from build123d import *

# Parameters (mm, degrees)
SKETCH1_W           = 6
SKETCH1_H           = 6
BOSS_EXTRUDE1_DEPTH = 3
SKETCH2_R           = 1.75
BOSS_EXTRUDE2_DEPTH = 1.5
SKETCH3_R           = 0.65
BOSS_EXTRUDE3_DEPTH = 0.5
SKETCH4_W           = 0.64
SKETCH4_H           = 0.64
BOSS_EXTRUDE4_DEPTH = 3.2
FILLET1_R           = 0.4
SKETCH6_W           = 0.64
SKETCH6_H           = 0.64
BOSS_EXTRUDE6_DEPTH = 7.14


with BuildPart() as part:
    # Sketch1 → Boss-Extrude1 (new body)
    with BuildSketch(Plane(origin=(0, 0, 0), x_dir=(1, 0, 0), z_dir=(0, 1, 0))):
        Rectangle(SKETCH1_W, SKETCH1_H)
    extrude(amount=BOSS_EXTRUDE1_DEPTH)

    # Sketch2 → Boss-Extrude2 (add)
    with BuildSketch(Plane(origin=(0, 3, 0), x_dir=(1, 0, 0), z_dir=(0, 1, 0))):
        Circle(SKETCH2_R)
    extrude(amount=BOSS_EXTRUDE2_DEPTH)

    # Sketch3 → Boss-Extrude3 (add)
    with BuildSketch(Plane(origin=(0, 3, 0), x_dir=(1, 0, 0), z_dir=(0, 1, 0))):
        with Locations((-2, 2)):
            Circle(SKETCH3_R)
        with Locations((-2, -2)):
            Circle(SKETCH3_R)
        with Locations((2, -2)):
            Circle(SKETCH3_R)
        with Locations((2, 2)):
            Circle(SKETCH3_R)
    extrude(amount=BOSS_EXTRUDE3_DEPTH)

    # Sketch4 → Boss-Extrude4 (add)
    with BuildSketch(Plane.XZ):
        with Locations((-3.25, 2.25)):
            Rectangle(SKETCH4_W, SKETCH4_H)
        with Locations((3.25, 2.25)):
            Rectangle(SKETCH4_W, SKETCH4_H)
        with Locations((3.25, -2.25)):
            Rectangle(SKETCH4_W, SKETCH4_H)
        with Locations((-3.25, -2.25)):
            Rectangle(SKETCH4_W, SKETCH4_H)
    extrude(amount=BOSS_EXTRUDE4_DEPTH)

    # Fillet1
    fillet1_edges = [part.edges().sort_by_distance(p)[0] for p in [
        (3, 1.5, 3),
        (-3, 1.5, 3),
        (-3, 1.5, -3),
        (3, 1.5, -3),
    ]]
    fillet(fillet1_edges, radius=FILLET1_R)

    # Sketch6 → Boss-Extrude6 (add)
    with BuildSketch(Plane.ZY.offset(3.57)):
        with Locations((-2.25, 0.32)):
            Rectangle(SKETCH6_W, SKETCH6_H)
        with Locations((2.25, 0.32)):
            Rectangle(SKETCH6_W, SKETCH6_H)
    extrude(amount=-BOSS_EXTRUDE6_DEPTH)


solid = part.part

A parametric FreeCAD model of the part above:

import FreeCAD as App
import Part
import Sketcher
from FreeCAD import Vector


def edges_at(feature, points):
    """Names of the edges that pass closest to the given points."""
    edges = feature.Shape.Edges
    near = lambda p: min(range(len(edges)), key=lambda i: edges[i].distToShape(Part.Vertex(*p))[0])
    return sorted({f"Edge{near(p) + 1}" for p in points})


def add_polygon(sketch, points):
    """Adds a closed chain of lines whose ends are joined by coincident constraints."""
    first, n = sketch.GeometryCount, len(points)
    for a, b in zip(points, points[1:] + points[:1]):
        sketch.addGeometry(Part.LineSegment(App.Vector(*a, 0), App.Vector(*b, 0)), False)
    for i in range(n):
        sketch.addConstraint(Sketcher.Constraint("Coincident", first + i, 2, first + (i + 1) % n, 1))

doc = App.newDocument("Part")
body = doc.addObject("PartDesign::Body", "Body")

sketch1 = body.newObject("Sketcher::SketchObject", "Sketch")
sketch1.AttachmentSupport = (doc.getObject("XZ_Plane"), [""])
sketch1.MapMode = "FlatFace"
add_polygon(sketch1, [(-3, -3), (-3, 3), (3, 3), (3, -3)])
sketch1.addConstraint(Sketcher.Constraint("Vertical", 0))
sketch1.addConstraint(Sketcher.Constraint("Horizontal", 1))
sketch1.addConstraint(Sketcher.Constraint("Vertical", 2))
sketch1.addConstraint(Sketcher.Constraint("Horizontal", 3))
sketch1.addConstraint(Sketcher.Constraint("Symmetric", 0, 2, 2, 2, -1, 1))
sketch1.addConstraint(Sketcher.Constraint("Equal", 3, 0))
sketch1.addConstraint(Sketcher.Constraint("DistanceX", 1, 1, 1, 2, 6.0))
pad1 = body.newObject("PartDesign::Pad", "Pad")
pad1.Profile = sketch1
pad1.Length = 3
pad1.Reversed = True

sketch2 = body.newObject("Sketcher::SketchObject", "Sketch001")
sketch2.AttachmentSupport = (doc.getObject("XZ_Plane"), [""])
sketch2.MapMode = "FlatFace"
sketch2.AttachmentOffset = App.Placement(Vector(0, 0, -3), App.Rotation())
sketch2.addGeometry(Part.Circle(Vector(0, 0, 0), Vector(0, 0, 1), 1.8), False)
sketch2.addConstraint(Sketcher.Constraint("Coincident", 0, 3, -1, 1))
sketch2.addConstraint(Sketcher.Constraint("Diameter", 0, 3.5))
pad2 = body.newObject("PartDesign::Pad", "Pad001")
pad2.Profile = sketch2
pad2.Length = 1.5
pad2.Reversed = True

sketch3 = body.newObject("Sketcher::SketchObject", "Sketch002")
sketch3.AttachmentSupport = (doc.getObject("XZ_Plane"), [""])
sketch3.MapMode = "FlatFace"
sketch3.AttachmentOffset = App.Placement(Vector(0, 0, -3), App.Rotation())
sketch3.addGeometry(Part.Circle(Vector(-2, -2, 0), Vector(0, 0, 1), 0.7), False)
sketch3.addGeometry(Part.Circle(Vector(-2, 2, 0), Vector(0, 0, 1), 0.7), False)
sketch3.addGeometry(Part.Circle(Vector(2, 2, 0), Vector(0, 0, 1), 0.7), False)
sketch3.addGeometry(Part.Circle(Vector(2, -2, 0), Vector(0, 0, 1), 0.7), False)
sketch3.addConstraint(Sketcher.Constraint("Equal", 0, 1))
sketch3.addConstraint(Sketcher.Constraint("Equal", 1, 2))
sketch3.addConstraint(Sketcher.Constraint("Equal", 2, 3))
sketch3.addConstraint(Sketcher.Constraint("Symmetric", 0, 3, 2, 3, -1, 1))
sketch3.addConstraint(Sketcher.Constraint("Symmetric", 1, 3, 3, 3, -1, 1))
sketch3.addConstraint(Sketcher.Constraint("Symmetric", 1, 3, 2, 3, -2))
sketch3.addConstraint(Sketcher.Constraint("Diameter", 0, 1.3))
sketch3.addConstraint(Sketcher.Constraint("DistanceX", 0, 3, -1, 1, 2.0))
sketch3.addConstraint(Sketcher.Constraint("DistanceY", 0, 3, -1, 1, 2.0))
pad3 = body.newObject("PartDesign::Pad", "Pad002")
pad3.Profile = sketch3
pad3.Length = 0.5
pad3.Reversed = True

sketch4 = body.newObject("Sketcher::SketchObject", "Sketch003")
sketch4.AttachmentSupport = (doc.getObject("XZ_Plane"), [""])
sketch4.MapMode = "FlatFace"
add_polygon(sketch4, [(-3.6, 2.6), (-3.6, 1.9), (-2.9, 1.9), (-2.9, 2.6)])
add_polygon(sketch4, [(2.9, 2.6), (2.9, 1.9), (3.6, 1.9), (3.6, 2.6)])
add_polygon(sketch4, [(2.9, -1.9), (2.9, -2.6), (3.6, -2.6), (3.6, -1.9)])
add_polygon(sketch4, [(-3.6, -1.9), (-3.6, -2.6), (-2.9, -2.6), (-2.9, -1.9)])
sketch4.addConstraint(Sketcher.Constraint("Vertical", 0))
sketch4.addConstraint(Sketcher.Constraint("Horizontal", 1))
sketch4.addConstraint(Sketcher.Constraint("Vertical", 2))
sketch4.addConstraint(Sketcher.Constraint("Horizontal", 3))
sketch4.addConstraint(Sketcher.Constraint("Vertical", 4))
sketch4.addConstraint(Sketcher.Constraint("Horizontal", 5))
sketch4.addConstraint(Sketcher.Constraint("Vertical", 6))
sketch4.addConstraint(Sketcher.Constraint("Horizontal", 7))
sketch4.addConstraint(Sketcher.Constraint("Vertical", 8))
sketch4.addConstraint(Sketcher.Constraint("Horizontal", 9))
sketch4.addConstraint(Sketcher.Constraint("Vertical", 10))
sketch4.addConstraint(Sketcher.Constraint("Horizontal", 11))
sketch4.addConstraint(Sketcher.Constraint("Vertical", 12))
sketch4.addConstraint(Sketcher.Constraint("Horizontal", 13))
sketch4.addConstraint(Sketcher.Constraint("Vertical", 14))
sketch4.addConstraint(Sketcher.Constraint("Horizontal", 15))
sketch4.addConstraint(Sketcher.Constraint("Symmetric", 2, 2, 8, 2, -1, 1))
sketch4.addConstraint(Sketcher.Constraint("Symmetric", 0, 2, 10, 2, -1, 1))
sketch4.addConstraint(Sketcher.Constraint("Symmetric", 6, 2, 12, 2, -1, 1))
sketch4.addConstraint(Sketcher.Constraint("Symmetric", 4, 2, 14, 2, -1, 1))
sketch4.addConstraint(Sketcher.Constraint("Symmetric", 1, 2, 4, 2, -2))
sketch4.addConstraint(Sketcher.Constraint("Symmetric", 3, 2, 6, 2, -2))
sketch4.addConstraint(Sketcher.Constraint("Equal", 15, 0))
sketch4.addConstraint(Sketcher.Constraint("DistanceX", 1, 1, 1, 2, 0.64))
sketch4.addConstraint(Sketcher.Constraint("DistanceX", 0, 2, 4, 2, 6.5))
sketch4.addConstraint(Sketcher.Constraint("DistanceY", 8, 2, 4, 2, 4.5))
pad4 = body.newObject("PartDesign::Pad", "Pad003")
pad4.Profile = sketch4
pad4.Length = 3.2
doc.recompute()

fillet = body.newObject("PartDesign::Fillet", "Fillet")
fillet.Base = (pad4, edges_at(pad4, [
    (3, 1.5, 3),
    (-3, 1.5, 3),
    (-3, 1.5, -3),
    (3, 1.5, -3),
]))
fillet.Radius = 0.4

sketch5 = body.newObject("Sketcher::SketchObject", "Sketch004")
sketch5.AttachmentSupport = (doc.getObject("YZ_Plane"), [""])
sketch5.MapMode = "FlatFace"
sketch5.AttachmentOffset = App.Placement(Vector(0, 0, -3.57), App.Rotation())
add_polygon(sketch5, [(0.6, -2.6), (0, -2.6), (0, -1.9), (0.6, -1.9)])
add_polygon(sketch5, [(0.6, 1.9), (0, 1.9), (0, 2.6), (0.6, 2.6)])
sketch5.addConstraint(Sketcher.Constraint("Horizontal", 0))
sketch5.addConstraint(Sketcher.Constraint("Vertical", 1))
sketch5.addConstraint(Sketcher.Constraint("Horizontal", 2))
sketch5.addConstraint(Sketcher.Constraint("Vertical", 3))
sketch5.addConstraint(Sketcher.Constraint("Horizontal", 4))
sketch5.addConstraint(Sketcher.Constraint("Vertical", 5))
sketch5.addConstraint(Sketcher.Constraint("Horizontal", 6))
sketch5.addConstraint(Sketcher.Constraint("Vertical", 7))
sketch5.addConstraint(Sketcher.Constraint("Symmetric", 1, 2, 4, 2, -1, 1))
sketch5.addConstraint(Sketcher.Constraint("Symmetric", 0, 2, 5, 2, -1))
sketch5.addConstraint(Sketcher.Constraint("Vertical", 3, 2, 6, 2))
sketch5.addConstraint(Sketcher.Constraint("Equal", 6, 1))
sketch5.addConstraint(Sketcher.Constraint("DistanceX", 0, 2, 0, 1, 0.64))
sketch5.addConstraint(Sketcher.Constraint("DistanceY", 0, 2, 4, 2, 4.5))
pad5 = body.newObject("PartDesign::Pad", "Pad004")
pad5.Profile = sketch5
pad5.Length = 7.14

doc.recompute()
